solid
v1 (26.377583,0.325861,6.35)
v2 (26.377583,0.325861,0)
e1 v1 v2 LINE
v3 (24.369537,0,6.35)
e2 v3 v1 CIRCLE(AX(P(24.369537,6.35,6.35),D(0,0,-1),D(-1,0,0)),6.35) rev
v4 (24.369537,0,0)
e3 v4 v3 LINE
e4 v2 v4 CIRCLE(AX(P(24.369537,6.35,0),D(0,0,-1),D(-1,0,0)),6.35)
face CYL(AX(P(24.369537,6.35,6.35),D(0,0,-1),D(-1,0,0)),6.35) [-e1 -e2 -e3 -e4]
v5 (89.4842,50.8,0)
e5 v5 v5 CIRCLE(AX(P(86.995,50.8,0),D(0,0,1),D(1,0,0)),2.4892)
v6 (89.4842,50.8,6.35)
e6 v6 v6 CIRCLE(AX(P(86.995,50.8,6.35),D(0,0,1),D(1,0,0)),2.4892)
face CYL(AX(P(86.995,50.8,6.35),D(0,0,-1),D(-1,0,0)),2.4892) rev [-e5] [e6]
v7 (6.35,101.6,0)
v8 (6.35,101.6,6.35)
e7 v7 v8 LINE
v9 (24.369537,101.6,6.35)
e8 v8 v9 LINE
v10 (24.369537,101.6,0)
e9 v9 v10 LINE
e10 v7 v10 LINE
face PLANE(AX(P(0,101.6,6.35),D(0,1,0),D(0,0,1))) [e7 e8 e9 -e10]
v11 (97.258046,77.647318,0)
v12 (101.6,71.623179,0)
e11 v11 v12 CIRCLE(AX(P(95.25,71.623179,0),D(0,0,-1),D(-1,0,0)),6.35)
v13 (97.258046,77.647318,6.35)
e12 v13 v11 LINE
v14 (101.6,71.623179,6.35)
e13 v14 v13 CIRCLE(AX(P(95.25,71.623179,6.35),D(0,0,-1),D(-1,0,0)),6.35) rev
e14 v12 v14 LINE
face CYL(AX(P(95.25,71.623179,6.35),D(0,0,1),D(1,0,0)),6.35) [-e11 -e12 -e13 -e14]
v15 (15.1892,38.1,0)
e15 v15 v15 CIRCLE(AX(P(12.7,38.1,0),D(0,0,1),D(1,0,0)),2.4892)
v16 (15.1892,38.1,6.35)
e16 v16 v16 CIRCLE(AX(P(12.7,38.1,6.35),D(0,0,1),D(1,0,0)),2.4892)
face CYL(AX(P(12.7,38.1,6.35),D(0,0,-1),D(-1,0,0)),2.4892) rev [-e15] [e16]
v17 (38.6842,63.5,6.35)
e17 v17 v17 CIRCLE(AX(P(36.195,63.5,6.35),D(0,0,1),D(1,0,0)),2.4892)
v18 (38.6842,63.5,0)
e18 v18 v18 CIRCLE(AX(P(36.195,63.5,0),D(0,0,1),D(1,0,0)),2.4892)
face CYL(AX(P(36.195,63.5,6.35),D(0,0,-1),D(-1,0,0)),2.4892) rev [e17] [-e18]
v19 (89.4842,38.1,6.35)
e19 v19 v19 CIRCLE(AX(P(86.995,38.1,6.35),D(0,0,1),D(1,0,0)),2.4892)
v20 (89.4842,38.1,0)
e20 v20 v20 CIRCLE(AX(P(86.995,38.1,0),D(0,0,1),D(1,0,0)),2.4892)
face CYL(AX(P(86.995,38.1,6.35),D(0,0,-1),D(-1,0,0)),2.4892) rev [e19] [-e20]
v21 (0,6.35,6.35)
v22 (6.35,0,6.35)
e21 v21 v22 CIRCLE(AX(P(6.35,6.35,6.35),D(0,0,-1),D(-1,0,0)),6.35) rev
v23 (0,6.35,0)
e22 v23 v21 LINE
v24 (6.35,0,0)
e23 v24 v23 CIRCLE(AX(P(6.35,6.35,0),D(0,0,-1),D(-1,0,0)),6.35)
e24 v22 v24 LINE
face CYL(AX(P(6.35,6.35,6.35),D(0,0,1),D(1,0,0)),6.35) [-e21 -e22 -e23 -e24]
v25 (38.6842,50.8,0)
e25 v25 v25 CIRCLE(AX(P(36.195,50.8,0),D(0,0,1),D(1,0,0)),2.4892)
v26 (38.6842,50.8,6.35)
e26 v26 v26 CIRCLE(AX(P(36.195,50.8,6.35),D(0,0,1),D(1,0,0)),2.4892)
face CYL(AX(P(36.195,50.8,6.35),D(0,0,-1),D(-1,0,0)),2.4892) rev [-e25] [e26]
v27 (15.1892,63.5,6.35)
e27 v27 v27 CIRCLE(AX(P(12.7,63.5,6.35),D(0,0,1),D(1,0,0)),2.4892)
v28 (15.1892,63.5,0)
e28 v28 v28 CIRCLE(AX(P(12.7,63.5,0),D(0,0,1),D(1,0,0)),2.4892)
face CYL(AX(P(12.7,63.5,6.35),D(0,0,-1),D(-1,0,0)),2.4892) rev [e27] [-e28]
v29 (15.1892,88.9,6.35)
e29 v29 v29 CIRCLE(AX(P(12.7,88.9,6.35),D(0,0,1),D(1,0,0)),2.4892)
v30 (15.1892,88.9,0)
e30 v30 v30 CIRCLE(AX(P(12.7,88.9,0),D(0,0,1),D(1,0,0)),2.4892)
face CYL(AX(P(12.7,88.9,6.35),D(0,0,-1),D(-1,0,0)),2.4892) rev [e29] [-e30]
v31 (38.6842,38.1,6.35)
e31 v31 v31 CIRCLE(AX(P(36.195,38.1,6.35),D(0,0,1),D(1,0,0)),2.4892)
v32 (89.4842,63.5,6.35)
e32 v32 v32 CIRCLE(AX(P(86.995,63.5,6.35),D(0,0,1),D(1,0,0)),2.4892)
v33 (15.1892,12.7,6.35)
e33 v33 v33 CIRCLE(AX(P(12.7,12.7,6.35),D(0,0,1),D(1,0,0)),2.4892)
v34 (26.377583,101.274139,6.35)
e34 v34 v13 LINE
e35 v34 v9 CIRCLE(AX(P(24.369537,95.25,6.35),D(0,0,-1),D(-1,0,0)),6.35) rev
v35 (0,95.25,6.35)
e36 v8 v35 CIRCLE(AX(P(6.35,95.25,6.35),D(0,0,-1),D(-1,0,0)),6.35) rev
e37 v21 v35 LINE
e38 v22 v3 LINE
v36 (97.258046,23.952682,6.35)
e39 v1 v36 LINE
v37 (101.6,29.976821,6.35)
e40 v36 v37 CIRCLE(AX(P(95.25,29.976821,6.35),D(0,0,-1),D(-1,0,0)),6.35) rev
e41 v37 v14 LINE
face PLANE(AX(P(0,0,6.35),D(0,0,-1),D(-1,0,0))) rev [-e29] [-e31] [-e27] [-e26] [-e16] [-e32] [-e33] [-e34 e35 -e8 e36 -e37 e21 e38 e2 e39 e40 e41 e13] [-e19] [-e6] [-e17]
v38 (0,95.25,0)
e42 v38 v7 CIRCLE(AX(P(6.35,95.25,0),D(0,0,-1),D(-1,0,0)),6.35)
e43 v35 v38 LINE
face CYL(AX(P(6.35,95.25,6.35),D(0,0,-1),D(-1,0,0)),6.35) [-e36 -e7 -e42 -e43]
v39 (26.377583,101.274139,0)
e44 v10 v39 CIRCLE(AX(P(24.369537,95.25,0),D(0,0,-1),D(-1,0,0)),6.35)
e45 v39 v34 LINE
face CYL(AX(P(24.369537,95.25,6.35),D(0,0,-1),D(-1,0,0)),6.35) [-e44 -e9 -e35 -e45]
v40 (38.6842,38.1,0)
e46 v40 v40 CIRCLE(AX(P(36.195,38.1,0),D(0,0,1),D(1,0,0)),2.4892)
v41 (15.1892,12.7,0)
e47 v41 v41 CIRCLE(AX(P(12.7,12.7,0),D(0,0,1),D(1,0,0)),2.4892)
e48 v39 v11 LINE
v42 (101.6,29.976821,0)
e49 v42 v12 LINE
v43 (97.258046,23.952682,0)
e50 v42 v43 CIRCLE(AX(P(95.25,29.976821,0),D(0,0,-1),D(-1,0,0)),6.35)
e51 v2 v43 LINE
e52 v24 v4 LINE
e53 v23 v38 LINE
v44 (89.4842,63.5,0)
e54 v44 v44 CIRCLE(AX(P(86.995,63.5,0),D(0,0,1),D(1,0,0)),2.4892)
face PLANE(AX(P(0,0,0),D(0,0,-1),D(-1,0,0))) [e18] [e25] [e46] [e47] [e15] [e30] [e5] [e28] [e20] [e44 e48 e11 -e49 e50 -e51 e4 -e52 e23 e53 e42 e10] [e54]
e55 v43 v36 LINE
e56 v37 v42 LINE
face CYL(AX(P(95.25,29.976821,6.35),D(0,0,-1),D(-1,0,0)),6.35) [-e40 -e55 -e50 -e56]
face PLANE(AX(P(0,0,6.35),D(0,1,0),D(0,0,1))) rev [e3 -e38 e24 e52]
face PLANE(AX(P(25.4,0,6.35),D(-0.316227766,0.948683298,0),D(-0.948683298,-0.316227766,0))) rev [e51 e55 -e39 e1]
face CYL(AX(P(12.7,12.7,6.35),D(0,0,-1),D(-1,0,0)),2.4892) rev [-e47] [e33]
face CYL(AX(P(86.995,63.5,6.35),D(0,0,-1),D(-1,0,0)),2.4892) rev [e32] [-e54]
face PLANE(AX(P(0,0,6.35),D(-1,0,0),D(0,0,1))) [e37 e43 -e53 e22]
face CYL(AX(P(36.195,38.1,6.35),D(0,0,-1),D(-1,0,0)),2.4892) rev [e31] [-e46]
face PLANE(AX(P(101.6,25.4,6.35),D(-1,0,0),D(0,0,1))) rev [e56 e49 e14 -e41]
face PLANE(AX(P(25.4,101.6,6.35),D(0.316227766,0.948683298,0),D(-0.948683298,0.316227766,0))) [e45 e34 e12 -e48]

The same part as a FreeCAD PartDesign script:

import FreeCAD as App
import Part
import Sketcher
from FreeCAD import Vector
Q = App.Units.Quantity


def edges_at(feature, points):
    """Names of the edges that pass closest to the given points."""
    edges = feature.Shape.Edges
    near = lambda p: min(range(len(edges)), key=lambda i: edges[i].distToShape(Part.Vertex(*p))[0])
    return sorted({f"Edge{near(p) + 1}" for p in points})


def add_polygon(sketch, points):
    """Adds a closed chain of lines whose ends are joined by coincident constraints."""
    first, n = sketch.GeometryCount, len(points)
    for a, b in zip(points, points[1:] + points[:1]):
        sketch.addGeometry(Part.LineSegment(App.Vector(*a, 0), App.Vector(*b, 0)), False)
    for i in range(n):
        sketch.addConstraint(Sketcher.Constraint("Coincident", first + i, 2, first + (i + 1) % n, 1))

doc = App.newDocument("Part")
body = doc.addObject("PartDesign::Body", "Body")

# Sketch on XY plane
sketch1 = doc.addObject("Sketcher::SketchObject", "Sketch")
body.addObject(sketch1)
sketch1.AttachmentSupport = (doc.XY_Plane, [""])
sketch1.MapMode = "FlatFace"
add_polygon(sketch1, [(0, 0), (25.4, 0), (101.6, 25.4), (101.6, 76.2), (25.4, 101.6), (0, 101.6)])  # lines 0-5
sketch1.addGeometry(Part.Circle(Vector(12.7, 12.7, 0), Vector(0, 0, 1), 2.5), False)  # 6
sketch1.addGeometry(Part.Circle(Vector(12.7, 38.1, 0), Vector(0, 0, 1), 2.5), False)  # 7
sketch1.addGeometry(Part.Circle(Vector(36.2, 38.1, 0), Vector(0, 0, 1), 2.5), False)  # 8
sketch1.addGeometry(Part.Circle(Vector(36.2, 50.8, 0), Vector(0, 0, 1), 2.5), False)  # 9
sketch1.addGeometry(Part.Circle(Vector(87, 38.1, 0), Vector(0, 0, 1), 2.5), False)  # 10
sketch1.addGeometry(Part.Circle(Vector(87, 50.8, 0), Vector(0, 0, 1), 2.5), False)  # 11
sketch1.addGeometry(Part.Circle(Vector(12.7, 63.5, 0), Vector(0, 0, 1), 2.5), False)  # 12
sketch1.addGeometry(Part.Circle(Vector(36.2, 63.5, 0), Vector(0, 0, 1), 2.5), False)  # 13
sketch1.addGeometry(Part.Circle(Vector(12.7, 88.9, 0), Vector(0, 0, 1), 2.5), False)  # 14
sketch1.addGeometry(Part.Circle(Vector(87, 63.5, 0), Vector(0, 0, 1), 2.5), False)  # 15
sketch1.addConstraint([
    Sketcher.Constraint("Horizontal", 0),
    Sketcher.Constraint("Vertical", 2),
    Sketcher.Constraint("Horizontal", 4),
    Sketcher.Constraint("Vertical", 5),
    Sketcher.Constraint("Coincident", 5, 2, -1, 1),
    Sketcher.Constraint("Equal", 6, 7),
    Sketcher.Constraint("Equal", 7, 8),
    Sketcher.Constraint("Equal", 8, 9),
    Sketcher.Constraint("Equal", 9, 10),
    Sketcher.Constraint("Equal", 10, 11),
    Sketcher.Constraint("Equal", 11, 12),
    Sketcher.Constraint("Equal", 12, 13),
    Sketcher.Constraint("Equal", 13, 14),
    Sketcher.Constraint("Equal", 14, 15),
    Sketcher.Constraint("Horizontal", 7, 3, 8, 3),
    Sketcher.Constraint("Horizontal", 8, 3, 10, 3),
    Sketcher.Constraint("Horizontal", 9, 3, 11, 3),
    Sketcher.Constraint("Horizontal", 12, 3, 13, 3),
    Sketcher.Constraint("Horizontal", 13, 3, 15, 3),
    Sketcher.Constraint("Vertical", 6, 3, 7, 3),
    Sketcher.Constraint("Vertical", 8, 3, 9, 3),
    Sketcher.Constraint("Vertical", 10, 3, 11, 3),
    Sketcher.Constraint("Vertical", 7, 3, 12, 3),
    Sketcher.Constraint("Vertical", 9, 3, 13, 3),
    Sketcher.Constraint("Vertical", 12, 3, 14, 3),
    Sketcher.Constraint("Vertical", 11, 3, 15, 3),
    Sketcher.Constraint("Vertical", 0, 2, 3, 2),
    Sketcher.Constraint("Equal", 1, 3),
    Sketcher.Constraint("DistanceX", 0, 1, 0, 2, Q("1 in")),
    Sketcher.Constraint("DistanceY", 2, 1, 2, 2, Q("2 in")),
    Sketcher.Constraint("DistanceY", 5, 2, 5, 1, Q("4 in")),
    Sketcher.Constraint("Diameter", 6, Q("0.196 in")),
    Sketcher.Constraint("DistanceY", -1, 1, 9, 3, Q("2 in")),
    Sketcher.Constraint("DistanceX", -1, 1, 1, 2, Q("4 in")),
    Sketcher.Constraint("DistanceY", 6, 3, 7, 3, Q("1 in")),
    Sketcher.Constraint("DistanceX", 8, 3, 10, 3, Q("2 in")),
    Sketcher.Constraint("DistanceY", 7, 3, 12, 3, Q("1 in")),
    Sketcher.Constraint("DistanceY", 12, 3, 14, 3, Q("1 in")),
    Sketcher.Constraint("DistanceX", -1, 1, 6, 3, Q("0.5 in")),
    Sketcher.Constraint("DistanceY", -1, 1, 6, 3, Q("0.5 in")),
    Sketcher.Constraint("DistanceX", -1, 1, 8, 3, Q("1.425 in")),
])
pad1 = doc.addObject("PartDesign::Pad", "Pad")
body.addObject(pad1)
pad1.Profile = sketch1
pad1.Length = Q("0.25 in")
doc.recompute()

fillet = doc.addObject("PartDesign::Fillet", "Fillet")
body.addObject(fillet)
fillet.Base = (pad1, edges_at(pad1, [
    (0, 0, 3.175),
    (25.4, 0, 3.175),
    (101.6, 25.4, 3.175),
    (101.6, 76.2, 3.175),
    (25.4, 101.6, 3.175),
    (0, 101.6, 3.175),
]))
fillet.Radius = Q("0.25 in")

doc.recompute()
